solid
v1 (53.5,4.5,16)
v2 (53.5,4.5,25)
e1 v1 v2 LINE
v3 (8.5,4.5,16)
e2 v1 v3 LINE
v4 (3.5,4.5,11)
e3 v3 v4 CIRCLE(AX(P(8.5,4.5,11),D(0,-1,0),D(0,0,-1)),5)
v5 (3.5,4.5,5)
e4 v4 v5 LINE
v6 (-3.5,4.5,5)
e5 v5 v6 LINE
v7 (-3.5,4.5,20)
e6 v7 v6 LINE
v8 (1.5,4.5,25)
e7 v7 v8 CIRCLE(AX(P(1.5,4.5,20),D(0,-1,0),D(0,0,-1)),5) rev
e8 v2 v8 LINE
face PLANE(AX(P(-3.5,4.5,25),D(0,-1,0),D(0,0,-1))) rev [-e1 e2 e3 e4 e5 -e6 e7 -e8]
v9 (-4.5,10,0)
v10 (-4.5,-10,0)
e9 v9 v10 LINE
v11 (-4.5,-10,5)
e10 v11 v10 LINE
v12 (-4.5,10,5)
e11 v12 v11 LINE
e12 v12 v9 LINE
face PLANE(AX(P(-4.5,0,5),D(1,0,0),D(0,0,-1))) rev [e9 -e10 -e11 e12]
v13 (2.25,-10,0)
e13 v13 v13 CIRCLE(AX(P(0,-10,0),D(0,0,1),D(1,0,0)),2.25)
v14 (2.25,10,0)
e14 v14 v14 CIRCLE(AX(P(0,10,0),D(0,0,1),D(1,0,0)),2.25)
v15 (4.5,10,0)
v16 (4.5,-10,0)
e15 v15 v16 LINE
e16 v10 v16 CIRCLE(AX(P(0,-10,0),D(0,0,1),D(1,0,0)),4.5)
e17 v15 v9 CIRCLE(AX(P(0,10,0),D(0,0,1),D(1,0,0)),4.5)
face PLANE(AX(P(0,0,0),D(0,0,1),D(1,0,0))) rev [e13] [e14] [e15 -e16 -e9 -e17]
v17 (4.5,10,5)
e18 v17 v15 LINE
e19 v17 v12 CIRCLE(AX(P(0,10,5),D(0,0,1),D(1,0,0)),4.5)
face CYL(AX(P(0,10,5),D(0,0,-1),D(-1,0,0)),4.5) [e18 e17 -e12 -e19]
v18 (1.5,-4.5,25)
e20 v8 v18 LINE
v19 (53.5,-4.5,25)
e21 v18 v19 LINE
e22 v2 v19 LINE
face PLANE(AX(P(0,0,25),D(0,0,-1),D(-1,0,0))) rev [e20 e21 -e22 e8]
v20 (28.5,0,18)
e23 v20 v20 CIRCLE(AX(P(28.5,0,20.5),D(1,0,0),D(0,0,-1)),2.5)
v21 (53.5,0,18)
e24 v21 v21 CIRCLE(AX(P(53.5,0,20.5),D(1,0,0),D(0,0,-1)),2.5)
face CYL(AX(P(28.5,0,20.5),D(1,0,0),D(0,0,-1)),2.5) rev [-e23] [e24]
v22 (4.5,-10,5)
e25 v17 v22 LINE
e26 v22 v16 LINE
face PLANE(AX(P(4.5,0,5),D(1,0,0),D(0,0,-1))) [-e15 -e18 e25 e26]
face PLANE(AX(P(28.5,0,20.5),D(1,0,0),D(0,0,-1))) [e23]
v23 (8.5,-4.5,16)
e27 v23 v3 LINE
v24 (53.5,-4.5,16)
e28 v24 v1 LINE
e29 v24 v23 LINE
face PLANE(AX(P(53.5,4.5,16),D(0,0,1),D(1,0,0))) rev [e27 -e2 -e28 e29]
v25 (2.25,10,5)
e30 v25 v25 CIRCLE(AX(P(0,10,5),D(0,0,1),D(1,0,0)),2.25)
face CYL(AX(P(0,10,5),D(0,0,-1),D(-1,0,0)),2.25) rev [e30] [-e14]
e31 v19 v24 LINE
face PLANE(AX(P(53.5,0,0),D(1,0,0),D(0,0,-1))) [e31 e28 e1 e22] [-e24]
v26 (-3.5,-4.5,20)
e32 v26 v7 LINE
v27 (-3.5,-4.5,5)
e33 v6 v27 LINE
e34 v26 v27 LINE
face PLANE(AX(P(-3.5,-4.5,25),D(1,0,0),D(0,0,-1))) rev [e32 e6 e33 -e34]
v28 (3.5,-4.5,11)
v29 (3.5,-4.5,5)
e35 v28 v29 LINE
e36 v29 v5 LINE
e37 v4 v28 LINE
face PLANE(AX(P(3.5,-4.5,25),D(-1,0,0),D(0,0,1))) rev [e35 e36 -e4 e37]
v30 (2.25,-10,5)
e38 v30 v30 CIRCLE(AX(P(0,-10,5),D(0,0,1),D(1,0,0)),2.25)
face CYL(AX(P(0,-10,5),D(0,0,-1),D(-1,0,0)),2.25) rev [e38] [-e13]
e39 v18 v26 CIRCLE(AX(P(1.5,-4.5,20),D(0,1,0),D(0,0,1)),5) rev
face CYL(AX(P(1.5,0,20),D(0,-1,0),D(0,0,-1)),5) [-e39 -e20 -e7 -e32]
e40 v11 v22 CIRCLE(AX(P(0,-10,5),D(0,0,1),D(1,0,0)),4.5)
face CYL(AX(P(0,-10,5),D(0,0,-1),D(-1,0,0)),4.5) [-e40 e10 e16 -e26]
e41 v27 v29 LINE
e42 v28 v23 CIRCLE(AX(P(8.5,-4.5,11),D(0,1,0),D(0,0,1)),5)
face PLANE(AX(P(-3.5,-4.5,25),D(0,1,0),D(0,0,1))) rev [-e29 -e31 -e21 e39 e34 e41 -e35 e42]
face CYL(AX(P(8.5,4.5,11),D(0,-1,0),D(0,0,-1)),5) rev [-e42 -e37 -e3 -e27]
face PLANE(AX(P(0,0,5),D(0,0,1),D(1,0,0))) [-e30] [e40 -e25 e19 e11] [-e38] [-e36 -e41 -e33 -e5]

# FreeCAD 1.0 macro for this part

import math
import FreeCAD as App
import Part
import Sketcher

V = App.Vector
Q = App.Units.Quantity


def edges_at(feature, points):
    """Names of the edges that pass closest to the given points."""
    edges = feature.Shape.Edges
    near = lambda p: min(range(len(edges)), key=lambda i: edges[i].distToShape(Part.Vertex(*p))[0])
    return sorted({f"Edge{near(p) + 1}" for p in points})

doc = App.newDocument("Part")
body = doc.addObject("PartDesign::Body", "Body")

# Sketch on XY plane
sketch1 = doc.addObject("Sketcher::SketchObject", "Sketch")
body.addObject(sketch1)
sketch1.AttachmentSupport = (doc.XY_Plane, [""])
sketch1.MapMode = "FlatFace"
sketch1.addGeometry(Part.ArcOfCircle(Part.Circle(V(0, 10, 0), V(0, 0, 1), 4.5), math.radians(0), math.radians(180)), False)
sketch1.addGeometry(Part.LineSegment(V(-4.5, 10, 0), V(-4.5, -10, 0)), False)
sketch1.addGeometry(Part.ArcOfCircle(Part.Circle(V(0, -10, 0), V(0, 0, 1), 4.5), math.radians(180), math.radians(360)), False)
sketch1.addGeometry(Part.LineSegment(V(4.5, -10, 0), V(4.5, 10, 0)), False)
sketch1.addGeometry(Part.Circle(V(0, -10, 0), V(0, 0, 1), 2.2), False)
sketch1.addGeometry(Part.Circle(V(0, 10, 0), V(0, 0, 1), 2.2), False)
sketch1.addConstraint(Sketcher.Constraint("Tangent", 0, 2, 1, 1))
sketch1.addConstraint(Sketcher.Constraint("Tangent", 1, 2, 2, 1))
sketch1.addConstraint(Sketcher.Constraint("Tangent", 2, 2, 3, 1))
sketch1.addConstraint(Sketcher.Constraint("Tangent", 3, 2, 0, 1))
sketch1.addConstraint(Sketcher.Constraint("Vertical", 1))
sketch1.addConstraint(Sketcher.Constraint("Vertical", 3))
sketch1.addConstraint(Sketcher.Constraint("Coincident", 4, 3, 2, 3))
sketch1.addConstraint(Sketcher.Constraint("Coincident", 5, 3, 0, 3))
sketch1.addConstraint(Sketcher.Constraint("Equal", 4, 5))
sketch1.addConstraint(Sketcher.Constraint("Symmetric", 0, 3, 2, 3, -1, 1))
sketch1.addConstraint(Sketcher.Constraint("Diameter", 4, Q("4.5 mm")))
sketch1.addConstraint(Sketcher.Constraint("Radius", 0, Q("4.5 mm")))
sketch1.addConstraint(Sketcher.Constraint("DistanceY", 1, 2, 1, 1, Q("20 mm")))
pad1 = doc.addObject("PartDesign::Pad", "Pad")
body.addObject(pad1)
pad1.Profile = sketch1
pad1.Length = 5

# Sketch on XY plane
sketch2 = doc.addObject("Sketcher::SketchObject", "Sketch001")
body.addObject(sketch2)
sketch2.AttachmentSupport = (doc.XY_Plane, [""])
sketch2.MapMode = "FlatFace"
sketch2.AttachmentOffset = App.Placement(V(0, 0, 5), App.Rotation())
sketch2.addGeometry(Part.LineSegment(V(-4, 4, 0), V(-4, -4, 0)), False)
sketch2.addGeometry(Part.LineSegment(V(-4, -4, 0), V(4, -4, 0)), False)
sketch2.addGeometry(Part.LineSegment(V(4, -4, 0), V(4, 4, 0)), False)
sketch2.addGeometry(Part.LineSegment(V(4, 4, 0), V(-4, 4, 0)), False)
sketch2.addConstraint(Sketcher.Constraint("Coincident", 0, 2, 1, 1))
sketch2.addConstraint(Sketcher.Constraint("Coincident", 1, 2, 2, 1))
sketch2.addConstraint(Sketcher.Constraint("Coincident", 2, 2, 3, 1))
sketch2.addConstraint(Sketcher.Constraint("Coincident", 3, 2, 0, 1))
sketch2.addConstraint(Sketcher.Constraint("Vertical", 0))
sketch2.addConstraint(Sketcher.Constraint("Horizontal", 1))
sketch2.addConstraint(Sketcher.Constraint("Vertical", 2))
sketch2.addConstraint(Sketcher.Constraint("Horizontal", 3))
sketch2.addConstraint(Sketcher.Constraint("Symmetric", 0, 2, 2, 2, -1, 1))
sketch2.addConstraint(Sketcher.Constraint("DistanceX", 1, 1, 1, 2, Q("7 mm")))
sketch2.addConstraint(Sketcher.Constraint("DistanceY", 0, 2, 0, 1, Q("9 mm")))
pad2 = doc.addObject("PartDesign::Pad", "Pad001")
body.addObject(pad2)
pad2.Profile = sketch2
pad2.Length = 20

# Sketch on YZ plane
sketch3 = doc.addObject("Sketcher::SketchObject", "Sketch002")
body.addObject(sketch3)
sketch3.AttachmentSupport = (doc.YZ_Plane, [""])
sketch3.MapMode = "FlatFace"
sketch3.AttachmentOffset = App.Placement(V(0, 0, 3.5), App.Rotation())
sketch3.addGeometry(Part.LineSegment(V(4, 25, 0), V(-4, 25, 0)), False)
sketch3.addGeometry(Part.LineSegment(V(-4, 25, 0), V(-4, 16, 0)), False)
sketch3.addGeometry(Part.LineSegment(V(-4, 16, 0), V(4, 16, 0)), False)
sketch3.addGeometry(Part.LineSegment(V(4, 16, 0), V(4, 25, 0)), False)
sketch3.addConstraint(Sketcher.Constraint("Coincident", 0, 2, 1, 1))
sketch3.addConstraint(Sketcher.Constraint("Coincident", 1, 2, 2, 1))
sketch3.addConstraint(Sketcher.Constraint("Coincident", 2, 2, 3, 1))
sketch3.addConstraint(Sketcher.Constraint("Coincident", 3, 2, 0, 1))
sketch3.addConstraint(Sketcher.Constraint("Horizontal", 0))
sketch3.addConstraint(Sketcher.Constraint("Vertical", 1))
sketch3.addConstraint(Sketcher.Constraint("Horizontal", 2))
sketch3.addConstraint(Sketcher.Constraint("Vertical", 3))
sketch3.addConstraint(Sketcher.Constraint("Equal", 2, 1))
sketch3.addConstraint(Sketcher.Constraint("DistanceX", 0, 2, 0, 1, Q("9 mm")))
sketch3.addConstraint(Sketcher.Constraint("DistanceY", -1, 1, 0, 2, Q("25 mm")))
sketch3.addConstraint(Sketcher.Constraint("DistanceX", 0, 2, -1, 1, Q("4.5 mm")))
pad3 = doc.addObject("PartDesign::Pad", "Pad002")
body.addObject(pad3)
pad3.Profile = sketch3
pad3.Length = 50

# Sketch on YZ plane
sketch4 = doc.addObject("Sketcher::SketchObject", "Sketch003")
body.addObject(sketch4)
sketch4.AttachmentSupport = (doc.YZ_Plane, [""])
sketch4.MapMode = "FlatFace"
sketch4.AttachmentOffset = App.Placement(V(0, 0, 53.5), App.Rotation())
sketch4.addGeometry(Part.Circle(V(0, 20.5, 0), V(0, 0, 1), 2.5), False)
sketch4.addConstraint(Sketcher.Constraint("PointOnObject", 0, 3, -2))
sketch4.addConstraint(Sketcher.Constraint("Diameter", 0, Q("5 mm")))
sketch4.addConstraint(Sketcher.Constraint("DistanceY", -1, 1, 0, 3, Q("20.5 mm")))
pocket1 = doc.addObject("PartDesign::Pocket", "Pocket")
body.addObject(pocket1)
pocket1.Profile = sketch4
pocket1.Length = 25
doc.recompute()

fillet = doc.addObject("PartDesign::Fillet", "Fillet")
body.addObject(fillet)
fillet.Base = (pocket1, edges_at(pocket1, [(3.5, 0, 16)]))
fillet.Radius = 5
doc.recompute()

fillet2 = doc.addObject("PartDesign::Fillet", "Fillet001")
body.addObject(fillet2)
fillet2.Base = (fillet, edges_at(fillet, [(-3.5, 0, 25)]))
fillet2.Radius = 5

doc.recompute()
